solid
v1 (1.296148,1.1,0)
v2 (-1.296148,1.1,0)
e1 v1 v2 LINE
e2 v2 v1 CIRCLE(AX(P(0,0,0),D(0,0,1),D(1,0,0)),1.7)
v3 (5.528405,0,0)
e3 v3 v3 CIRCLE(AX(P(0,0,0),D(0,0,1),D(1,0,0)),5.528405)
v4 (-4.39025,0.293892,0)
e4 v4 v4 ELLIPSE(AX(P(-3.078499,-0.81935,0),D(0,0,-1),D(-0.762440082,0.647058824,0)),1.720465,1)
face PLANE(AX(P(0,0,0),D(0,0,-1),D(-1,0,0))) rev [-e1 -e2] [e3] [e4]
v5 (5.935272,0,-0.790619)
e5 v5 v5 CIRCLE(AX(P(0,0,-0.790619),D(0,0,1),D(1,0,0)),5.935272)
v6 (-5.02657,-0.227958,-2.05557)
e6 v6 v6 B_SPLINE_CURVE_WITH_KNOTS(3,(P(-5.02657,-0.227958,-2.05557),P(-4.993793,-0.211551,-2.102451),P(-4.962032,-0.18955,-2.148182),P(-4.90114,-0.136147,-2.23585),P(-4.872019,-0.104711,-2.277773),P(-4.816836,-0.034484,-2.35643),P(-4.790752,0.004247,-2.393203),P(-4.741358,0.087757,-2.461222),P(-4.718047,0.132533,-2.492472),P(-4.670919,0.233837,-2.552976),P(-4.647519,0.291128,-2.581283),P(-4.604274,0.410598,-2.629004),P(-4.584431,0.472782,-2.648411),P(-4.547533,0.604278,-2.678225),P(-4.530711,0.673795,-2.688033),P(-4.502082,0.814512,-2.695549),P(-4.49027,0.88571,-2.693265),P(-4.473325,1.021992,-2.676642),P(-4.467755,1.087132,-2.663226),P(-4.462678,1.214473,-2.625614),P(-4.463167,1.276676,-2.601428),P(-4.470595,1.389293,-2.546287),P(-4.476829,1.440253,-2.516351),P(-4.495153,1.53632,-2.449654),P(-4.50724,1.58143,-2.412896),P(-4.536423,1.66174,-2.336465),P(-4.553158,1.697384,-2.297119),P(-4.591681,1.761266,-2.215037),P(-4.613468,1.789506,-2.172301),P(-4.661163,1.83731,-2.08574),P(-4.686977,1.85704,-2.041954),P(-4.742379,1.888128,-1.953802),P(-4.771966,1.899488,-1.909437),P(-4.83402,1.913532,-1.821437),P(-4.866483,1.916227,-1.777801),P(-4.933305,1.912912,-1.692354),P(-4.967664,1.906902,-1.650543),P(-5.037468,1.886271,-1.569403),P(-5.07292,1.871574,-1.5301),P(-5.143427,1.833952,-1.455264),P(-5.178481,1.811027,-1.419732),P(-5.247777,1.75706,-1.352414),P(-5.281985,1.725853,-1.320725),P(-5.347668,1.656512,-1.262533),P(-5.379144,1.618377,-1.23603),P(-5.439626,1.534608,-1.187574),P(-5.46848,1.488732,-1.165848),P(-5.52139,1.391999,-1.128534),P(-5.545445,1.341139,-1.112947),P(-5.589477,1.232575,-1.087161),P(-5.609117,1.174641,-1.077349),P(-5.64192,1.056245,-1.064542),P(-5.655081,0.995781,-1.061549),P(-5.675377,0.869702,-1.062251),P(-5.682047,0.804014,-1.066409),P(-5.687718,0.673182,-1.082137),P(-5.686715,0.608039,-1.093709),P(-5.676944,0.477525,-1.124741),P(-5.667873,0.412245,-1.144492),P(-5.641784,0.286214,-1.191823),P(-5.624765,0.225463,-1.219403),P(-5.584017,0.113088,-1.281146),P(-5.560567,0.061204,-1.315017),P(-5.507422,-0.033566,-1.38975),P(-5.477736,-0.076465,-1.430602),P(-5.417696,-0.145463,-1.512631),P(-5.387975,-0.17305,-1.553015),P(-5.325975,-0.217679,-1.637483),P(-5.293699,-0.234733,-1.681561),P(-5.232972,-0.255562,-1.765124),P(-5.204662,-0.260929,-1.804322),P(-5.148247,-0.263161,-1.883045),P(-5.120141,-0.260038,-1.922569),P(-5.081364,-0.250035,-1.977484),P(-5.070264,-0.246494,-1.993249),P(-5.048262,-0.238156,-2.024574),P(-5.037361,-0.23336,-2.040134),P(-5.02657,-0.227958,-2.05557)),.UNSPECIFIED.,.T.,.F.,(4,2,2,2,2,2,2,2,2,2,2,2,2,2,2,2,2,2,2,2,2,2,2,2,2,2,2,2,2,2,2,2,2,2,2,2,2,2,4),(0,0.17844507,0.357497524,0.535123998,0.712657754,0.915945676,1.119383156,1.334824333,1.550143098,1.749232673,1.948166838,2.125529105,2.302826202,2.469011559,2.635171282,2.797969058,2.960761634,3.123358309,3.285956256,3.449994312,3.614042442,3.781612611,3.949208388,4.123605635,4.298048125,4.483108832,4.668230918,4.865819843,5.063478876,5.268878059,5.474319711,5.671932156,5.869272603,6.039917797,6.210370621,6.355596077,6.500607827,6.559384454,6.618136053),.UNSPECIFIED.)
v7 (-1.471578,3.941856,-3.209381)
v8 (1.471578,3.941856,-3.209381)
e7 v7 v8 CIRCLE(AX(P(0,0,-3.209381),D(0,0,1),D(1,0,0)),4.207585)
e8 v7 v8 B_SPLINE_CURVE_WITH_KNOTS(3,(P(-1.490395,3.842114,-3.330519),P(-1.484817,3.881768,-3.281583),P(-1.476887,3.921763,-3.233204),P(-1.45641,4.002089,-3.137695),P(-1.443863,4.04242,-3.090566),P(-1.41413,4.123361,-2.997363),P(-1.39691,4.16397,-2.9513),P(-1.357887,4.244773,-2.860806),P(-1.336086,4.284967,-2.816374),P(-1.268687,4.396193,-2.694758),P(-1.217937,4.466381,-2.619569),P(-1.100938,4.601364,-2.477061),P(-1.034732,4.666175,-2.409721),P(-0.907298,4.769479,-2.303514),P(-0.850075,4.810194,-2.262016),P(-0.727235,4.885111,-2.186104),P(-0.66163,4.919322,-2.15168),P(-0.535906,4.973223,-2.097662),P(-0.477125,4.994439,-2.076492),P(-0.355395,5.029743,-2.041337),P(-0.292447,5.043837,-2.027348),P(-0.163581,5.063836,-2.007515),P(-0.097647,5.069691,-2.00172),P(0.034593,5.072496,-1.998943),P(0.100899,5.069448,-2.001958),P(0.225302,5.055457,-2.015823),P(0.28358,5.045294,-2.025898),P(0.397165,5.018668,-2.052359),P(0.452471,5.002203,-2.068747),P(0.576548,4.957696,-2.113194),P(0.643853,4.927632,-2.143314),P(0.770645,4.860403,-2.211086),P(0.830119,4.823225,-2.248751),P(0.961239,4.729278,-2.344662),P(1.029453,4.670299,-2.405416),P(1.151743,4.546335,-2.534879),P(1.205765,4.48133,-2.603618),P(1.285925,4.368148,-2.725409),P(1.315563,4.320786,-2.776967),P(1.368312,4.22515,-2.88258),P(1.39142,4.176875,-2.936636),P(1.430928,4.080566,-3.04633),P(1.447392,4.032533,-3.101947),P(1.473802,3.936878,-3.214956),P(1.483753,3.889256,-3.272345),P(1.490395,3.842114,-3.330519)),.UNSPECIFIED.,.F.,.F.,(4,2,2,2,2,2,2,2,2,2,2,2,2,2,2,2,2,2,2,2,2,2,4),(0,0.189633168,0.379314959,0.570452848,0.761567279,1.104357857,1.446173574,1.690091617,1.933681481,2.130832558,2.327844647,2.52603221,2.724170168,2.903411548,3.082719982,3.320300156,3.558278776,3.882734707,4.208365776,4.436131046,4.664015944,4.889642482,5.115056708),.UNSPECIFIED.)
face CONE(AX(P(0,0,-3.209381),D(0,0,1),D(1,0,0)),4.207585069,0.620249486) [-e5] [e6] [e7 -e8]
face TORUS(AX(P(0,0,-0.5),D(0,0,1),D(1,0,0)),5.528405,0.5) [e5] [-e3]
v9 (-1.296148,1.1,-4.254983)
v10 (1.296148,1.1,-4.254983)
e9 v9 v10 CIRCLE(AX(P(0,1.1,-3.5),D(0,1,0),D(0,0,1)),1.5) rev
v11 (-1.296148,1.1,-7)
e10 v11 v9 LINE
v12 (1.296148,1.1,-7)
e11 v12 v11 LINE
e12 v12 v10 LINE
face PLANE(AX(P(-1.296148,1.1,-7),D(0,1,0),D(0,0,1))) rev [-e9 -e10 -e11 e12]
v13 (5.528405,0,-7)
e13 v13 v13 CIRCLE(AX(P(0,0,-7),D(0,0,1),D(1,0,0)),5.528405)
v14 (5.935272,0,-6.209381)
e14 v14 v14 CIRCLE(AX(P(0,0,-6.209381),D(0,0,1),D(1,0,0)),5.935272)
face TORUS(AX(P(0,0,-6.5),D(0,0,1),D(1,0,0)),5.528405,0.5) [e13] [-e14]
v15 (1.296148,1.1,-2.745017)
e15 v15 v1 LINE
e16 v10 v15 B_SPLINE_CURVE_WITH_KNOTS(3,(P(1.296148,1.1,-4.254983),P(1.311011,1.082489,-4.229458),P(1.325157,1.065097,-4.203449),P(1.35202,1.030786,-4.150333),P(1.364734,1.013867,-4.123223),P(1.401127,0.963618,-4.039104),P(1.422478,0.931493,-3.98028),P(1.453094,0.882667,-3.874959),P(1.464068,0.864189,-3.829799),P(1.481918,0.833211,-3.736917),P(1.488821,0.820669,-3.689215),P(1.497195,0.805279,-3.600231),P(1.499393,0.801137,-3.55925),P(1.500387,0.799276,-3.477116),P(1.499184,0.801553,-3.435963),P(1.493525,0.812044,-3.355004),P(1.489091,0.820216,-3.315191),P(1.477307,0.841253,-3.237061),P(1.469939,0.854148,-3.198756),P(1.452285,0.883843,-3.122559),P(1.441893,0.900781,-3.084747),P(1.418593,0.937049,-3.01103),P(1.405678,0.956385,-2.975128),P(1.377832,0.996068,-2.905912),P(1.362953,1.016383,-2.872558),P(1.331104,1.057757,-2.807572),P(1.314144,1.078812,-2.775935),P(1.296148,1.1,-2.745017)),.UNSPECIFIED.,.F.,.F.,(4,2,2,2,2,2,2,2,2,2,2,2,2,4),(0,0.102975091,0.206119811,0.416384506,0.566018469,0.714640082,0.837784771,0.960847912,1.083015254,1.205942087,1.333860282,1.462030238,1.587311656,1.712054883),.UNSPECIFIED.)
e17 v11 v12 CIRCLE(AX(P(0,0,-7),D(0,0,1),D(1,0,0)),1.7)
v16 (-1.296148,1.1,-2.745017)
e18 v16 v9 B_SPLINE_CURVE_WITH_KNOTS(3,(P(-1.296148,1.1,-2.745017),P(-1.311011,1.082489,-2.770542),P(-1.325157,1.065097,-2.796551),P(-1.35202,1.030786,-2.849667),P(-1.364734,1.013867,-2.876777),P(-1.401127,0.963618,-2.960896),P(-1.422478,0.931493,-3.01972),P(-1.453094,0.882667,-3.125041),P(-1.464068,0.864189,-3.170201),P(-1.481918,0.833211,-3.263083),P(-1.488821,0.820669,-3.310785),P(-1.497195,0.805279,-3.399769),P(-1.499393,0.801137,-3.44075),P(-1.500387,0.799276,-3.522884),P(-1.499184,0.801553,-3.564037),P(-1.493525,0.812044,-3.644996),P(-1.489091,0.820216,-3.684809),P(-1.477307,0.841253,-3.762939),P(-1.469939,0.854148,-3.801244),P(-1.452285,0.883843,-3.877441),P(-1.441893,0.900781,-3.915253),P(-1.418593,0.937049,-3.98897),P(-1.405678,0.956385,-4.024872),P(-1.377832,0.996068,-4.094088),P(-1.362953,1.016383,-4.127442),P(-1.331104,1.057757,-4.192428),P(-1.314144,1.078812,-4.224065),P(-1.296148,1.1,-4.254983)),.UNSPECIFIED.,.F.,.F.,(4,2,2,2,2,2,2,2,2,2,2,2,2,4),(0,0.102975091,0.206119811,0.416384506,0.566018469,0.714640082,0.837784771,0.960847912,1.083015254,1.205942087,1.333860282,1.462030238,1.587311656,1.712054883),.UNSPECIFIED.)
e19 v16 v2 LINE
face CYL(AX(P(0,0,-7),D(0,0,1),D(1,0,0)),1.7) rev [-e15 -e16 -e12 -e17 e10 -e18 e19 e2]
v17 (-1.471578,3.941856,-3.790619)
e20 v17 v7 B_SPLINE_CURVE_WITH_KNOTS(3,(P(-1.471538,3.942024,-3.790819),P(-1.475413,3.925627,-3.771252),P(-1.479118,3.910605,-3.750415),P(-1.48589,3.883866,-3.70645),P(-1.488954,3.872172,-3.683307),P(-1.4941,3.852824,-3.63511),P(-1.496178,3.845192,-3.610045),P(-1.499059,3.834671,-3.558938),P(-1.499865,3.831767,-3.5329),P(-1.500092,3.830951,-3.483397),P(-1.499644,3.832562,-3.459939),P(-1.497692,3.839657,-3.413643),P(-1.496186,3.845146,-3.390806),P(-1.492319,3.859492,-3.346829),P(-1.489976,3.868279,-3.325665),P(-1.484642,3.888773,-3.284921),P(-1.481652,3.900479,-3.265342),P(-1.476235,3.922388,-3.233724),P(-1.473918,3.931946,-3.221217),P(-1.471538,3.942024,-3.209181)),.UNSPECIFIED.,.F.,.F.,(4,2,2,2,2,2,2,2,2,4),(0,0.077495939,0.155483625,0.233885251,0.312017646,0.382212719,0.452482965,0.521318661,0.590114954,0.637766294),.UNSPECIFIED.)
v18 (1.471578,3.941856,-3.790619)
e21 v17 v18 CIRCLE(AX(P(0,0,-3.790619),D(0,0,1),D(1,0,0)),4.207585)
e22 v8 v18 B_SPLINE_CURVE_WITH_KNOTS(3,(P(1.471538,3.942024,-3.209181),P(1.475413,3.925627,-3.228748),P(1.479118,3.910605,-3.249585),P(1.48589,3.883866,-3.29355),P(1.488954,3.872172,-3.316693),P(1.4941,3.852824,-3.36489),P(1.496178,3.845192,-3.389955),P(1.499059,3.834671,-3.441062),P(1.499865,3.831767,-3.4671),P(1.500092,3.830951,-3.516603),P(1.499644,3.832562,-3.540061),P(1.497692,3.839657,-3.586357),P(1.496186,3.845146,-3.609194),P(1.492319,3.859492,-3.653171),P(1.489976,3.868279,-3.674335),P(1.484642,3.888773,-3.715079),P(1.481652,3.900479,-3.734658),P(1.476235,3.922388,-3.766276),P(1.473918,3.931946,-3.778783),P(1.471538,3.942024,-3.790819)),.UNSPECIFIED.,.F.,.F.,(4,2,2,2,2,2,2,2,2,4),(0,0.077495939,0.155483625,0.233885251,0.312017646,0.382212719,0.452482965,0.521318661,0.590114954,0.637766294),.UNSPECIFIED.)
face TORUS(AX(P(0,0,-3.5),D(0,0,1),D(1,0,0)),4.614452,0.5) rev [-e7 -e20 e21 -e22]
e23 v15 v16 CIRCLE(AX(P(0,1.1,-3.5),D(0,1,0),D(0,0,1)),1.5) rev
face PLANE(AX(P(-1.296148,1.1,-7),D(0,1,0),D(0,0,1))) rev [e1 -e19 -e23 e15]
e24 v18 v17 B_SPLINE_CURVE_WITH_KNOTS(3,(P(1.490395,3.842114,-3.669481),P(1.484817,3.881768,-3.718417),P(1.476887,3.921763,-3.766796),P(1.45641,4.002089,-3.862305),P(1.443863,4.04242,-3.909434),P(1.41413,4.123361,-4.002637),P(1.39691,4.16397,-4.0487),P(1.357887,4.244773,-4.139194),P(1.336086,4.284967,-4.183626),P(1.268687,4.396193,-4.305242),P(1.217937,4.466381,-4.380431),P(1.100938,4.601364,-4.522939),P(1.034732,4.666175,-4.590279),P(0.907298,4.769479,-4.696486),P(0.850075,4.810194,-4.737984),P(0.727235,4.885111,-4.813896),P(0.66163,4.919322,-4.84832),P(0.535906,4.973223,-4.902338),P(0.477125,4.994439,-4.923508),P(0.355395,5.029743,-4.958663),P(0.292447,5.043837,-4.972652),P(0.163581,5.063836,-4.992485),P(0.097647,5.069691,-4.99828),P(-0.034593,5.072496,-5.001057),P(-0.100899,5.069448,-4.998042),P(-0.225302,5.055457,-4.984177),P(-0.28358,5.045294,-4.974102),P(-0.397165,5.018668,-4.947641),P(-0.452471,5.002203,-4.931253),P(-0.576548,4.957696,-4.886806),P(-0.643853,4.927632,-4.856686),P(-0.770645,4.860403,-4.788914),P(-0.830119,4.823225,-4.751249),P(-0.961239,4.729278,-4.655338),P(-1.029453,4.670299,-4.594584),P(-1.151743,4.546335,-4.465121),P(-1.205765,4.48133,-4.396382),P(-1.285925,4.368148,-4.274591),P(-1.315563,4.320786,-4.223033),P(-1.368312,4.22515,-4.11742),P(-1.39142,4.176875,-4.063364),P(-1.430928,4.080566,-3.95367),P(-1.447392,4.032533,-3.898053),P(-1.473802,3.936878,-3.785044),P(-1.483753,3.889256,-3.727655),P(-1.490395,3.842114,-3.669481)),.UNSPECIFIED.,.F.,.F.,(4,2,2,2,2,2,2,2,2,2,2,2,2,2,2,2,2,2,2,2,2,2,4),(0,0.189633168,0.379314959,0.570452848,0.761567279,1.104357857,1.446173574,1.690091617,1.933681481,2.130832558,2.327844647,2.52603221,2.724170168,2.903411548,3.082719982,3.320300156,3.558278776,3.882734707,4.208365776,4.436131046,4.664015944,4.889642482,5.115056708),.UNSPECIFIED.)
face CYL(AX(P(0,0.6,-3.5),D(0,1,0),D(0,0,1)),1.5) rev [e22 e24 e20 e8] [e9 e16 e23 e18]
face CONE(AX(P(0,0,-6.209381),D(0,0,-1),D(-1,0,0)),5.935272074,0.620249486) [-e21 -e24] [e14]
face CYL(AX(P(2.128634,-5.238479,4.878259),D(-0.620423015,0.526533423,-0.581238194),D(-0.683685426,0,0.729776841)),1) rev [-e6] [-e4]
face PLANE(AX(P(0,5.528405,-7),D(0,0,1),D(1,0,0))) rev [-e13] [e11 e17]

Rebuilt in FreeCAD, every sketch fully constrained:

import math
import FreeCAD as App
import Part
import Sketcher

doc = App.newDocument("Part")
body = doc.addObject("PartDesign::Body", "Body")

# Sketch on YZ plane
sketch1 = body.newObject("Sketcher::SketchObject", "Sketch")
sketch1.AttachmentSupport = (doc.getObject("YZ_Plane"), [""])
sketch1.MapMode = "FlatFace"
sketch1.addGeometry([
    Part.LineSegment(App.Vector(0, 0, 0), App.Vector(0, -7, 0)),  # 0
    Part.LineSegment(App.Vector(0, -7, 0), App.Vector(5.528405, -7, 0)),  # 1
    Part.ArcOfCircle(Part.Circle(App.Vector(5.528405, -6.5, 0), App.Vector(0, 0, 1), 0.5), math.radians(-90), math.radians(35.537678)),  # 2
    Part.LineSegment(App.Vector(5.935272, -6.209381, 0), App.Vector(4.207585, -3.790619, 0)),  # 3
    Part.ArcOfCircle(Part.Circle(App.Vector(4.614452, -3.5, 0), App.Vector(0, 0, 1), 0.5), math.radians(144.462322), math.radians(215.537678)),  # 4
    Part.LineSegment(App.Vector(4.207585, -3.209381, 0), App.Vector(5.935272, -0.790619, 0)),  # 5
    Part.ArcOfCircle(Part.Circle(App.Vector(5.528405, -0.5, 0), App.Vector(0, 0, 1), 0.5), math.radians(-35.537678), math.radians(90)),  # 6
    Part.LineSegment(App.Vector(5.528405, 0, 0), App.Vector(0, 0, 0)),  # 7
], False)
sketch1.addConstraint([
    Sketcher.Constraint("Coincident", 0, 2, 1, 1),
    Sketcher.Constraint("Tangent", 1, 2, 2, 1),
    Sketcher.Constraint("Tangent", 2, 2, 3, 1),
    Sketcher.Constraint("Tangent", 3, 2, 4, 2),
    Sketcher.Constraint("Tangent", 4, 1, 5, 1),
    Sketcher.Constraint("Tangent", 5, 2, 6, 1),
    Sketcher.Constraint("Tangent", 6, 2, 7, 1),
    Sketcher.Constraint("Coincident", 7, 2, 0, 1),
    Sketcher.Constraint("Vertical", 0),
    Sketcher.Constraint("Horizontal", 1),
    Sketcher.Constraint("Horizontal", 7),
    Sketcher.Constraint("Coincident", 7, 2, -1, 1),
    Sketcher.Constraint("Equal", 2, 4),
    Sketcher.Constraint("Equal", 4, 6),
    Sketcher.Constraint("Vertical", 2, 3, 6, 3),
    Sketcher.Constraint("Vertical", 3, 2, 4, 1),
    Sketcher.Constraint("Radius", 2, 0.5),
    Sketcher.Constraint("DistanceY", 0, 2, 0, 1, 7.0),
    Sketcher.Constraint("DistanceX", 1, 1, 1, 2, 5.528405),
    Sketcher.Constraint("DistanceX", -1, 1, 4, 3, 4.614452),
])
revolution = body.newObject("PartDesign::Revolution", "Revolution")
revolution.Profile = sketch1
revolution.ReferenceAxis = (sketch1, ["V_Axis"])
revolution.Angle = 360

# Sketch on XY plane
sketch2 = body.newObject("Sketcher::SketchObject", "Sketch001")
sketch2.AttachmentSupport = (doc.getObject("XY_Plane"), [""])
sketch2.MapMode = "FlatFace"
sketch2.addGeometry([
    Part.LineSegment(App.Vector(1.296148, 1.1, 0), App.Vector(-1.296148, 1.1, 0)),
    Part.ArcOfCircle(Part.Circle(App.Vector(0, 0, 0), App.Vector(0, 0, 1), 1.7), math.radians(139.679785), math.radians(400.320215)),
], False)
sketch2.addConstraint([
    Sketcher.Constraint("Coincident", 0, 1, 1, 2),
    Sketcher.Constraint("Coincident", 1, 1, 0, 2),
    Sketcher.Constraint("Horizontal", 0),
    Sketcher.Constraint("Coincident", 1, 3, -1, 1),
    Sketcher.Constraint("Radius", 1, 1.7),
    Sketcher.Constraint("DistanceY", -1, 1, 0, 1, 1.1),
])
pocket1 = body.newObject("PartDesign::Pocket", "Pocket")
pocket1.Profile = sketch2
pocket1.Length = 7

# Sketch on XZ plane
sketch3 = body.newObject("Sketcher::SketchObject", "Sketch002")
sketch3.AttachmentSupport = (doc.getObject("XZ_Plane"), [""])
sketch3.MapMode = "FlatFace"
sketch3.AttachmentOffset = App.Placement(App.Vector(0, 0, -1.1), App.Rotation())
sketch3.addGeometry(Part.Circle(App.Vector(0, -3.5, 0), App.Vector(0, 0, 1), 1.5), False)
sketch3.addConstraint([
    Sketcher.Constraint("PointOnObject", 0, 3, -2),
    Sketcher.Constraint("Diameter", 0, 3.0),
    Sketcher.Constraint("DistanceY", 0, 3, -1, 1, 3.5),
])
pocket2 = body.newObject("PartDesign::Pocket", "Pocket001")
pocket2.Profile = sketch3
pocket2.Type = "TwoLengths"
pocket2.Length = 0.5
pocket2.Length2 = 7
pocket2.Reversed = True

# Sketch on an angled plane
sketch4 = body.newObject("Sketcher::SketchObject", "Sketch003")
sketch4.Placement = App.Placement(App.Vector(-3.719471, 3.156598, -2.27027), App.Rotation(App.Vector(-0.422508835, 0.399980246, 0.813327786), App.Vector(0.660728059, 0.750185549, -0.025691927), App.Vector(-0.620423015, 0.526533423, -0.581238194), "ZXY"))
sketch4.addGeometry(Part.Circle(App.Vector(-0.014643, -2.617518, 0), App.Vector(0, 0, 1), 1), False)
sketch4.addConstraint([
    Sketcher.Constraint("Diameter", 0, 2.0),
    Sketcher.Constraint("DistanceX", 0, 3, -1, 1, 0.014643),
    Sketcher.Constraint("DistanceY", 0, 3, -1, 1, 2.617518),
])
pocket3 = body.newObject("PartDesign::Pocket", "Pocket002")
pocket3.Profile = sketch4
pocket3.Type = "ThroughAll"

doc.recompute()
